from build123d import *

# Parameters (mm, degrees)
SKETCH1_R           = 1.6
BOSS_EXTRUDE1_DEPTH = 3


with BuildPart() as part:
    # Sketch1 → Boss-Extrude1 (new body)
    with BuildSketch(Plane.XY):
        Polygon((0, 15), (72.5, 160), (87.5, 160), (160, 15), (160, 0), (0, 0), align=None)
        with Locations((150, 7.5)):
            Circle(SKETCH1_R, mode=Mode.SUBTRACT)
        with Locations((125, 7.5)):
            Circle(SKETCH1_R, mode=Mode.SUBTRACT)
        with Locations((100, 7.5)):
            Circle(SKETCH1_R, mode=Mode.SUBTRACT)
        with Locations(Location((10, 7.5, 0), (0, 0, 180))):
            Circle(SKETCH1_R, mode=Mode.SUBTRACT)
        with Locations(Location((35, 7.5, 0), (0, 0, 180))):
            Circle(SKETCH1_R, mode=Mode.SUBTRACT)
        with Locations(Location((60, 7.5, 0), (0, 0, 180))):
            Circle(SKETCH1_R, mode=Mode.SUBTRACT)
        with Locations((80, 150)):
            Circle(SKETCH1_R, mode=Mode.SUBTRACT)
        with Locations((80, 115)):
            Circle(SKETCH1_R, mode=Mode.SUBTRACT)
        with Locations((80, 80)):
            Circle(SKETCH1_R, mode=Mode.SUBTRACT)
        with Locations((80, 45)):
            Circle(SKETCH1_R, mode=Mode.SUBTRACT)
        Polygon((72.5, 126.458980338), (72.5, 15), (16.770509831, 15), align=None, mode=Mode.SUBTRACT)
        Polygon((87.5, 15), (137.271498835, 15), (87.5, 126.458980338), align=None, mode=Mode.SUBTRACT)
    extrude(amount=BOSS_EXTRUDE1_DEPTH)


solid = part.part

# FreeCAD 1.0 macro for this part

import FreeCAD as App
import Part
import Sketcher

V = App.Vector


def add_polygon(sketch, points):
    """Adds a closed chain of lines whose ends are joined by coincident constraints."""
    first, n = sketch.GeometryCount, len(points)
    for a, b in zip(points, points[1:] + points[:1]):
        sketch.addGeometry(Part.LineSegment(App.Vector(*a, 0), App.Vector(*b, 0)), False)
    for i in range(n):
        sketch.addConstraint(Sketcher.Constraint("Coincident", first + i, 2, first + (i + 1) % n, 1))

doc = App.newDocument("Part")
params = doc.addObject("Spreadsheet::Sheet", "Params")
for row, (alias, value) in enumerate([
    ("sketch1_diameter", "3.2 mm"),
    ("sketch1_width", "160 mm"),
    ("sketch1_width2", "15 mm"),
    ("pad1_length", "3 mm"),
], start=1):
    params.set(f"A{row}", alias)
    params.set(f"B{row}", "=" + value)
    params.setAlias(f"B{row}", alias)

body = doc.addObject("PartDesign::Body", "Body")

# Sketch on XY plane
sketch1 = body.newObject("Sketcher::SketchObject", "Sketch")
sketch1.AttachmentSupport = (doc.getObject("XY_Plane"), [""])
sketch1.MapMode = "FlatFace"
add_polygon(sketch1, [(72.5, 160), (0, 15), (0, 0), (160, 0), (160, 15), (87.5, 160)])  # lines 0-5
sketch1.addGeometry(Part.Circle(V(150, 7.5, 0), V(0, 0, 1), 1.6), False)  # 6
sketch1.addGeometry(Part.Circle(V(125, 7.5, 0), V(0, 0, 1), 1.6), False)  # 7
sketch1.addGeometry(Part.Circle(V(100, 7.5, 0), V(0, 0, 1), 1.6), False)  # 8
add_polygon(sketch1, [(87.5, 15), (87.5, 126.45898), (137.271499, 15)])  # lines 9-11
sketch1.addGeometry(Part.Circle(V(60, 7.5, 0), V(0, 0, 1), 1.6), False)  # 12
sketch1.addGeometry(Part.Circle(V(35, 7.5, 0), V(0, 0, 1), 1.6), False)  # 13
sketch1.addGeometry(Part.Circle(V(10, 7.5, 0), V(0, 0, 1), 1.6), False)  # 14
sketch1.addGeometry(Part.Circle(V(80, 45, 0), V(0, 0, 1), 1.6), False)  # 15
add_polygon(sketch1, [(72.5, 126.45898), (72.5, 15), (16.77051, 15)])  # lines 16-18
sketch1.addGeometry(Part.Circle(V(80, 80, 0), V(0, 0, 1), 1.6), False)  # 19
sketch1.addGeometry(Part.Circle(V(80, 115, 0), V(0, 0, 1), 1.6), False)  # 20
sketch1.addGeometry(Part.Circle(V(80, 150, 0), V(0, 0, 1), 1.6), False)  # 21
sketch1.addConstraint([
    Sketcher.Constraint("Vertical", 1),
    Sketcher.Constraint("Horizontal", 2),
    Sketcher.Constraint("Vertical", 3),
    Sketcher.Constraint("Horizontal", 5),
    Sketcher.Constraint("Vertical", 9),
    Sketcher.Constraint("Horizontal", 11),
    Sketcher.Constraint("Vertical", 16),
    Sketcher.Constraint("Horizontal", 17),
    Sketcher.Constraint("Coincident", 1, 2, -1, 1),
    Sketcher.Constraint("Equal", 6, 7),
    Sketcher.Constraint("Equal", 7, 8),
    Sketcher.Constraint("Equal", 8, 12),
    Sketcher.Constraint("Equal", 12, 13),
    Sketcher.Constraint("Equal", 13, 14),
    Sketcher.Constraint("Equal", 14, 15),
    Sketcher.Constraint("Equal", 15, 19),
    Sketcher.Constraint("Equal", 19, 20),
    Sketcher.Constraint("Equal", 20, 21),
    Sketcher.Constraint("Parallel", 0, 18),
    Sketcher.Constraint("Horizontal", 6, 3, 7, 3),
    Sketcher.Constraint("Horizontal", 7, 3, 8, 3),
    Sketcher.Constraint("Horizontal", 8, 3, 12, 3),
    Sketcher.Constraint("Horizontal", 12, 3, 13, 3),
    Sketcher.Constraint("Horizontal", 13, 3, 14, 3),
    Sketcher.Constraint("Horizontal", 0, 2, 3, 2),
    Sketcher.Constraint("Horizontal", 3, 2, 10, 2),
    Sketcher.Constraint("Horizontal", 11, 2, 16, 2),
    Sketcher.Constraint("Horizontal", 9, 2, 18, 2),
    Sketcher.Constraint("Vertical", 15, 3, 19, 3),
    Sketcher.Constraint("Vertical", 19, 3, 20, 3),
    Sketcher.Constraint("Vertical", 20, 3, 21, 3),
    Sketcher.Constraint("Vertical", 4, 2, 9, 2),
    Sketcher.Constraint("Vertical", 5, 2, 16, 2),
    Sketcher.Constraint("Equal", 5, 1),
    Sketcher.Constraint("Equal", 0, 4),
    Sketcher.Constraint("Diameter", 6, 3.2),
    Sketcher.Constraint("DistanceX", 2, 1, 2, 2, 160.0),
    Sketcher.Constraint("DistanceX", 5, 2, 5, 1, 15.0),
    Sketcher.Constraint("DistanceX", -1, 1, 6, 3, 150.0),
    Sketcher.Constraint("DistanceX", -1, 1, 7, 3, 125.0),
    Sketcher.Constraint("DistanceX", -1, 1, 8, 3, 100.0),
    Sketcher.Constraint("DistanceX", -1, 1, 12, 3, 60.0),
    Sketcher.Constraint("DistanceX", -1, 1, 13, 3, 35.0),
    Sketcher.Constraint("DistanceX", -1, 1, 14, 3, 10.0),
    Sketcher.Constraint("DistanceX", -1, 1, 15, 3, 80.0),
    Sketcher.Constraint("DistanceY", -1, 1, 15, 3, 45.0),
    Sketcher.Constraint("DistanceY", -1, 1, 19, 3, 80.0),
    Sketcher.Constraint("DistanceY", -1, 1, 20, 3, 115.0),
    Sketcher.Constraint("DistanceY", -1, 1, 21, 3, 150.0),
    Sketcher.Constraint("DistanceY", -1, 1, 4, 2, 160.0),
    Sketcher.Constraint("DistanceY", -1, 1, 6, 3, 7.5),
    Sketcher.Constraint("DistanceX", 11, 2, 11, 1, 49.771499),
    Sketcher.Constraint("DistanceX", 17, 2, 17, 1, 55.72949),
])
sketch1.setExpression("Constraints[47]", "Params.sketch1_diameter")
sketch1.setExpression("Constraints[48]", "Params.sketch1_width")
sketch1.setExpression("Constraints[49]", "Params.sketch1_width2")
pad1 = body.newObject("PartDesign::Pad", "Pad")
pad1.Profile = sketch1
pad1.setExpression("Length", "Params.pad1_length")

doc.recompute()
